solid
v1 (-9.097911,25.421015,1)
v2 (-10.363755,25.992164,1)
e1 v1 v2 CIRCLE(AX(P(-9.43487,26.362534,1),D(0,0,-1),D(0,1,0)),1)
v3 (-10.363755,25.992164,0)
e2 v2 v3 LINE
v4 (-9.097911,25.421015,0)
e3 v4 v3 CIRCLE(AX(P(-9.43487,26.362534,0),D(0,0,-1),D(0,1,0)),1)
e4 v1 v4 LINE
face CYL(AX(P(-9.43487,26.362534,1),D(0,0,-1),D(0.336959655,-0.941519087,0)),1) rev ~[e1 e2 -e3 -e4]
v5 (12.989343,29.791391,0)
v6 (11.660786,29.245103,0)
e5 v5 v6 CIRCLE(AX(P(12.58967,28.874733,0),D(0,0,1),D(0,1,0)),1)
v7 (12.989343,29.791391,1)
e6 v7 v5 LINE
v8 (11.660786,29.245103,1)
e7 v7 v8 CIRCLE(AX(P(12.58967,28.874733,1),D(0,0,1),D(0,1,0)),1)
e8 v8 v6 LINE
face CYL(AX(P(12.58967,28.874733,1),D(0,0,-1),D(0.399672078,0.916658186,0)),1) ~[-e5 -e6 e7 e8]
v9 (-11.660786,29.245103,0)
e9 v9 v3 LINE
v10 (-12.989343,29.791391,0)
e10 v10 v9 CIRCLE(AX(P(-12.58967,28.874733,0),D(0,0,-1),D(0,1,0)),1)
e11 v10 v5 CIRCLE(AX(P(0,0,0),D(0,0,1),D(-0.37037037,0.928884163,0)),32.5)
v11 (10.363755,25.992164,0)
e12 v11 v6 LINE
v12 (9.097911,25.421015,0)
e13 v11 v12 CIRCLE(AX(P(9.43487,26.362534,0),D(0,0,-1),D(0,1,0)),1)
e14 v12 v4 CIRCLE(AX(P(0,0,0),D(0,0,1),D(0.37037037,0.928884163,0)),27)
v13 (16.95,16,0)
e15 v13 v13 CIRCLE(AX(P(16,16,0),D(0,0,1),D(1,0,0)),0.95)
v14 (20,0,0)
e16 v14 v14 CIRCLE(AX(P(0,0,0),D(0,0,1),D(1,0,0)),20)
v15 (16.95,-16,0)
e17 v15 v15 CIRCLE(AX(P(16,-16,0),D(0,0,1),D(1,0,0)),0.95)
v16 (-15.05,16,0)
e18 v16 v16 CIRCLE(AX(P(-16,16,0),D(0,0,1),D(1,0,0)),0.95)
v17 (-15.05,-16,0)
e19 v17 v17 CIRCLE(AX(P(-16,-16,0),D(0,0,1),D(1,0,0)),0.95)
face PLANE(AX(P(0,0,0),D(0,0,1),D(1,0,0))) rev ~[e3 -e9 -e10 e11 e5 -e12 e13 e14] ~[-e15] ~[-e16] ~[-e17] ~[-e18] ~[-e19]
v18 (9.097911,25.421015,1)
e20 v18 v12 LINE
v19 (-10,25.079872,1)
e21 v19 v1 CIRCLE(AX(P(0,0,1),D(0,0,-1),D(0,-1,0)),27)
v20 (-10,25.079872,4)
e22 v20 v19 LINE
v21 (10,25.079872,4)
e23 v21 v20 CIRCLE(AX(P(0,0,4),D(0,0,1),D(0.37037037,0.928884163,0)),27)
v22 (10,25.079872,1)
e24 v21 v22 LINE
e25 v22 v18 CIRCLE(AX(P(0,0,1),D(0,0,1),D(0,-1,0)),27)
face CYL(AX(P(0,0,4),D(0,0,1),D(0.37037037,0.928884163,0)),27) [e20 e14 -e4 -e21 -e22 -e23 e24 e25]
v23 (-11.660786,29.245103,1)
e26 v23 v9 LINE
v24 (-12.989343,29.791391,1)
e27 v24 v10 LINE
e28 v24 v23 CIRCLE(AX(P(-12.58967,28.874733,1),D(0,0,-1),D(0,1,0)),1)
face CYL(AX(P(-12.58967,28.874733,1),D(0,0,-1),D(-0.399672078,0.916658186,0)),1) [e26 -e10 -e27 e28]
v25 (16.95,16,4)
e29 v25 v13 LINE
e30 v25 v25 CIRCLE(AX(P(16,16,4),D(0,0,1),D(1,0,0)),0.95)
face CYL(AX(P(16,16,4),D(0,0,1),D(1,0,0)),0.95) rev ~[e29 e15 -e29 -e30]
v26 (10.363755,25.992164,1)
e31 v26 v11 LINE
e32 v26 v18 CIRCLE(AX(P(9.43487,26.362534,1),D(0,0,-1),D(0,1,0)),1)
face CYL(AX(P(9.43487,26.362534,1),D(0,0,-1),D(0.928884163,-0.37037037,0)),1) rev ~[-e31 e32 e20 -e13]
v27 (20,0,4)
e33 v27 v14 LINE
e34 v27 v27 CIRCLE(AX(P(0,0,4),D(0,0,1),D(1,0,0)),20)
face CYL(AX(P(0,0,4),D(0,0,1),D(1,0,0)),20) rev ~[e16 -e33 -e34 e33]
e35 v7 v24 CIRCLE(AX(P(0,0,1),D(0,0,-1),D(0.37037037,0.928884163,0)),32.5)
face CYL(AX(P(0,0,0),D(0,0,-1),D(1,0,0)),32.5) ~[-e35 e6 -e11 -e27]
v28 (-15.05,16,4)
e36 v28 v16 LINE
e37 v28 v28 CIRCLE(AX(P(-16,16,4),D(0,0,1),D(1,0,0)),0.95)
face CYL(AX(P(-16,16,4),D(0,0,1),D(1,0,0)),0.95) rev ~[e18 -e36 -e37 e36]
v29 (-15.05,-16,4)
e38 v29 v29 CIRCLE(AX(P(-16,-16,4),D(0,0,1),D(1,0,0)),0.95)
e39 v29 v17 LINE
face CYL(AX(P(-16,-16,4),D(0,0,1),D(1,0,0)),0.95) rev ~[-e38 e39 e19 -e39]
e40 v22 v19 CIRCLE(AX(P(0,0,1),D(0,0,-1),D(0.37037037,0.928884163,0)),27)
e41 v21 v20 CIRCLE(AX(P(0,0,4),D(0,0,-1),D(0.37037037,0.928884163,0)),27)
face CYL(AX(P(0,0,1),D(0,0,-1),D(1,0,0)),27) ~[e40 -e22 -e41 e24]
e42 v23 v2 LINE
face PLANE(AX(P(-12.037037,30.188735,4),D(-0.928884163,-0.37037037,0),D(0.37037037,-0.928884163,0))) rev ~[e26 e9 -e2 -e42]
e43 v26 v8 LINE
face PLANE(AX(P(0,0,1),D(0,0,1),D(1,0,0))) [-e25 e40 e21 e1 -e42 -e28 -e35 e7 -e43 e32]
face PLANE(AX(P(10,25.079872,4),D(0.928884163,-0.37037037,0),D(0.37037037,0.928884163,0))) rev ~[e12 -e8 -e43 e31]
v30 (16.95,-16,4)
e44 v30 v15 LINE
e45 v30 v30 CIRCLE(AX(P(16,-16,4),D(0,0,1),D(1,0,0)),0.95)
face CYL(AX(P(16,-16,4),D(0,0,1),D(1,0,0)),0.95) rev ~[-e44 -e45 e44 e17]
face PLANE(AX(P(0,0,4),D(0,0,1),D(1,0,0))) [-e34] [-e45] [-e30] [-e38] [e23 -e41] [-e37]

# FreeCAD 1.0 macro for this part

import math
import FreeCAD as App
import Part
import Sketcher

V = App.Vector
Q = App.Units.Quantity


def edges_at(feature, points):
    """Names of the edges that pass closest to the given points."""
    edges = feature.Shape.Edges
    near = lambda p: min(range(len(edges)), key=lambda i: edges[i].distToShape(Part.Vertex(*p))[0])
    return sorted({f"Edge{near(p) + 1}" for p in points})

doc = App.newDocument("Part")
body = doc.addObject("PartDesign::Body", "Body")

sketch1 = body.newObject("Sketcher::SketchObject", "Sketch")
sketch1.AttachmentSupport = (doc.getObject("XY_Plane"), [""])
sketch1.MapMode = "FlatFace"
sketch1.addGeometry(Part.Circle(V(0, 0, 0), V(0, 0, 1), 32), False)
sketch1.addConstraint(Sketcher.Constraint("Coincident", 0, 3, -1, 1))
sketch1.addConstraint(Sketcher.Constraint("Diameter", 0, Q("65 mm")))
pad1 = body.newObject("PartDesign::Pad", "Pad")
pad1.Profile = sketch1
pad1.Length = 1

sketch2 = body.newObject("Sketcher::SketchObject", "Sketch001")
sketch2.AttachmentSupport = (doc.getObject("XY_Plane"), [""])
sketch2.MapMode = "FlatFace"
sketch2.AttachmentOffset = App.Placement(V(0, 0, 1), App.Rotation())
sketch2.addGeometry(Part.Circle(V(0, 0, 0), V(0, 0, 1), 27), False)
sketch2.addConstraint(Sketcher.Constraint("Coincident", 0, 3, -1, 1))
sketch2.addConstraint(Sketcher.Constraint("Diameter", 0, Q("54 mm")))
pad2 = body.newObject("PartDesign::Pad", "Pad001")
pad2.Profile = sketch2
pad2.Length = 3

sketch3 = body.newObject("Sketcher::SketchObject", "Sketch002")
sketch3.AttachmentSupport = (doc.getObject("XY_Plane"), [""])
sketch3.MapMode = "FlatFace"
sketch3.AttachmentOffset = App.Placement(V(0, 0, 4), App.Rotation())
sketch3.addGeometry(Part.Circle(V(-16, 16, 0), V(0, 0, 1), 0.9), False)
sketch3.addGeometry(Part.Circle(V(16, 16, 0), V(0, 0, 1), 0.9), False)
sketch3.addGeometry(Part.Circle(V(-16, -16, 0), V(0, 0, 1), 0.9), False)
sketch3.addGeometry(Part.Circle(V(16, -16, 0), V(0, 0, 1), 0.9), False)
sketch3.addConstraint(Sketcher.Constraint("Equal", 0, 1))
sketch3.addConstraint(Sketcher.Constraint("Equal", 1, 2))
sketch3.addConstraint(Sketcher.Constraint("Equal", 2, 3))
sketch3.addConstraint(Sketcher.Constraint("Symmetric", 1, 3, 2, 3, -1, 1))
sketch3.addConstraint(Sketcher.Constraint("Symmetric", 0, 3, 3, 3, -1, 1))
sketch3.addConstraint(Sketcher.Constraint("Symmetric", 0, 3, 1, 3, -2))
sketch3.addConstraint(Sketcher.Constraint("Diameter", 0, Q("1.9 mm")))
sketch3.addConstraint(Sketcher.Constraint("DistanceX", 0, 3, -1, 1, Q("16 mm")))
sketch3.addConstraint(Sketcher.Constraint("DistanceY", -1, 1, 0, 3, Q("16 mm")))
pocket1 = body.newObject("PartDesign::Pocket", "Pocket")
pocket1.Profile = sketch3
pocket1.Length = 5

sketch4 = body.newObject("Sketcher::SketchObject", "Sketch003")
sketch4.AttachmentSupport = (doc.getObject("XY_Plane"), [""])
sketch4.MapMode = "FlatFace"
sketch4.AttachmentOffset = App.Placement(V(0, 0, 4), App.Rotation())
sketch4.addGeometry(Part.Circle(V(0, 0, 0), V(0, 0, 1), 20), False)
sketch4.addGeometry(Part.ArcOfCircle(Part.Circle(V(0, 0, 0), V(0, 0, 1), 27), math.radians(68), math.radians(112)), False)
sketch4.addGeometry(Part.LineSegment(V(10, 25, 0), V(12, 30, 0)), False)
sketch4.addGeometry(Part.ArcOfCircle(Part.Circle(V(0, 0, 0), V(0, 0, 1), 32), math.radians(68), math.radians(112)), False)
sketch4.addGeometry(Part.LineSegment(V(-12, 30, 0), V(-10, 25, 0)), False)
sketch4.addConstraint(Sketcher.Constraint("Coincident", 1, 1, 2, 1))
sketch4.addConstraint(Sketcher.Constraint("Coincident", 2, 2, 3, 1))
sketch4.addConstraint(Sketcher.Constraint("Coincident", 3, 2, 4, 1))
sketch4.addConstraint(Sketcher.Constraint("Coincident", 4, 2, 1, 2))
sketch4.addConstraint(Sketcher.Constraint("Coincident", 0, 3, -1, 1))
sketch4.addConstraint(Sketcher.Constraint("Coincident", 1, 3, -1, 1))
sketch4.addConstraint(Sketcher.Constraint("Coincident", 3, 3, -1, 1))
sketch4.addConstraint(Sketcher.Constraint("Horizontal", 2, 2, 3, 2))
sketch4.addConstraint(Sketcher.Constraint("Horizontal", 1, 1, 4, 2))
sketch4.addConstraint(Sketcher.Constraint("Diameter", 0, Q("40 mm")))
sketch4.addConstraint(Sketcher.Constraint("Radius", 1, Q("27 mm")))
sketch4.addConstraint(Sketcher.Constraint("Radius", 3, Q("32.5 mm")))
sketch4.addConstraint(Sketcher.Constraint("DistanceX", -1, 1, 1, 1, Q("10 mm")))
sketch4.addConstraint(Sketcher.Constraint("DistanceX", -1, 1, 2, 2, Q("12.037037 mm")))
pocket2 = body.newObject("PartDesign::Pocket", "Pocket001")
pocket2.Profile = sketch4
pocket2.Length = 5
doc.recompute()

fillet = body.newObject("PartDesign::Fillet", "Fillet")
fillet.Base = (pocket2, edges_at(pocket2, [
    (12.037, 30.189, 0.5),
    (-12.037, 30.189, 0.5),
    (-10, 25.08, 0.5),
    (10, 25.08, 0.5),
]))
fillet.Radius = 1

doc.recompute()
